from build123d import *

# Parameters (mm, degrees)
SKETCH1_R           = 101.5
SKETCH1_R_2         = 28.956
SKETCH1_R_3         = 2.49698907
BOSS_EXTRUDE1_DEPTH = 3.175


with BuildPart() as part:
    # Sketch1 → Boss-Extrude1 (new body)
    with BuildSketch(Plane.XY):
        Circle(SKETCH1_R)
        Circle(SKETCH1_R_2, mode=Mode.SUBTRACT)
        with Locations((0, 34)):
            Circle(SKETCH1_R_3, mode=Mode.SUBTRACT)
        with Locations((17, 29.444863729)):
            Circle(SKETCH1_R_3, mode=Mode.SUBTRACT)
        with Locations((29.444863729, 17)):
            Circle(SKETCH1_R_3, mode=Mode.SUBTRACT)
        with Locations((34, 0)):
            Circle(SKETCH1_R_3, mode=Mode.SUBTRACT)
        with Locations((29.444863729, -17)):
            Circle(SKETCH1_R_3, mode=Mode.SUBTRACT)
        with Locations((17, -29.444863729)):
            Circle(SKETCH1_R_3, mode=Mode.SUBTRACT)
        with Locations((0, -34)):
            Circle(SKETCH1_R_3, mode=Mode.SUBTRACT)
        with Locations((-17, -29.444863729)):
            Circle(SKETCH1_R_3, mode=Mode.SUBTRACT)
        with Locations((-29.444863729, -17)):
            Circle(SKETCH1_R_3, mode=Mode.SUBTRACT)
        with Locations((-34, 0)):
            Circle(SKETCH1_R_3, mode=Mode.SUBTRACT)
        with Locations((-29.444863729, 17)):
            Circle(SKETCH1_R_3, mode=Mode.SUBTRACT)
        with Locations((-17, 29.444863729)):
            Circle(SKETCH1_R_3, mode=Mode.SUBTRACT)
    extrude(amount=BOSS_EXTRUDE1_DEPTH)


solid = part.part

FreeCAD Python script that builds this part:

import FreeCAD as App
import Part
import Sketcher
Q = App.Units.Quantity

doc = App.newDocument("Part")
body = doc.addObject("PartDesign::Body", "Body")

# Sketch on XY plane
sketch1 = doc.addObject("Sketcher::SketchObject", "Sketch")
body.addObject(sketch1)
sketch1.AttachmentSupport = (doc.XY_Plane, [""])
sketch1.MapMode = "FlatFace"
sketch1.addGeometry(Part.Circle(App.Vector(0, 0, 0), App.Vector(0, 0, 1), 101.5), False)
sketch1.addGeometry(Part.Circle(App.Vector(-17, -29.4, 0), App.Vector(0, 0, 1), 2.5), False)
sketch1.addGeometry(Part.Circle(App.Vector(-29.4, -17, 0), App.Vector(0, 0, 1), 2.5), False)
sketch1.addGeometry(Part.Circle(App.Vector(0, -34, 0), App.Vector(0, 0, 1), 2.5), False)
sketch1.addGeometry(Part.Circle(App.Vector(17, -29.4, 0), App.Vector(0, 0, 1), 2.5), False)
sketch1.addGeometry(Part.Circle(App.Vector(29.4, -17, 0), App.Vector(0, 0, 1), 2.5), False)
sketch1.addGeometry(Part.Circle(App.Vector(-34, 0, 0), App.Vector(0, 0, 1), 2.5), False)
sketch1.addGeometry(Part.Circle(App.Vector(-29.4, 17, 0), App.Vector(0, 0, 1), 2.5), False)
sketch1.addGeometry(Part.Circle(App.Vector(-17, 29.4, 0), App.Vector(0, 0, 1), 2.5), False)
sketch1.addGeometry(Part.Circle(App.Vector(0, 0, 0), App.Vector(0, 0, 1), 29), False)
sketch1.addGeometry(Part.Circle(App.Vector(34, 0, 0), App.Vector(0, 0, 1), 2.5), False)
sketch1.addGeometry(Part.Circle(App.Vector(29.4, 17, 0), App.Vector(0, 0, 1), 2.5), False)
sketch1.addGeometry(Part.Circle(App.Vector(0, 34, 0), App.Vector(0, 0, 1), 2.5), False)
sketch1.addGeometry(Part.Circle(App.Vector(17, 29.4, 0), App.Vector(0, 0, 1), 2.5), False)
sketch1.addConstraint(Sketcher.Constraint("Coincident", 0, 3, -1, 1))
sketch1.addConstraint(Sketcher.Constraint("Coincident", 9, 3, -1, 1))
sketch1.addConstraint(Sketcher.Constraint("Equal", 1, 2))
sketch1.addConstraint(Sketcher.Constraint("Equal", 2, 3))
sketch1.addConstraint(Sketcher.Constraint("Equal", 3, 4))
sketch1.addConstraint(Sketcher.Constraint("Equal", 4, 5))
sketch1.addConstraint(Sketcher.Constraint("Equal", 5, 6))
sketch1.addConstraint(Sketcher.Constraint("Equal", 6, 7))
sketch1.addConstraint(Sketcher.Constraint("Equal", 7, 8))
sketch1.addConstraint(Sketcher.Constraint("Equal", 8, 10))
sketch1.addConstraint(Sketcher.Constraint("Equal", 10, 11))
sketch1.addConstraint(Sketcher.Constraint("Equal", 11, 12))
sketch1.addConstraint(Sketcher.Constraint("Equal", 12, 13))
sketch1.addConstraint(Sketcher.Constraint("Symmetric", 5, 3, 7, 3, -1, 1))
sketch1.addConstraint(Sketcher.Constraint("Symmetric", 4, 3, 8, 3, -1, 1))
sketch1.addConstraint(Sketcher.Constraint("Symmetric", 6, 3, 10, 3, -1, 1))
sketch1.addConstraint(Sketcher.Constraint("Symmetric", 2, 3, 11, 3, -1, 1))
sketch1.addConstraint(Sketcher.Constraint("Symmetric", 3, 3, 12, 3, -1, 1))
sketch1.addConstraint(Sketcher.Constraint("Symmetric", 1, 3, 13, 3, -1, 1))
sketch1.addConstraint(Sketcher.Constraint("Symmetric", 1, 3, 4, 3, -2))
sketch1.addConstraint(Sketcher.Constraint("Symmetric", 2, 3, 5, 3, -2))
sketch1.addConstraint(Sketcher.Constraint("PointOnObject", 3, 3, -2))
sketch1.addConstraint(Sketcher.Constraint("PointOnObject", 6, 3, -1))
sketch1.addConstraint(Sketcher.Constraint("Diameter", 9, Q("2.28 in")))
sketch1.addConstraint(Sketcher.Constraint("Diameter", 0, Q("203 mm")))
sketch1.addConstraint(Sketcher.Constraint("Diameter", 1, Q("4.993978 mm")))
sketch1.addConstraint(Sketcher.Constraint("DistanceX", 1, 3, -1, 1, Q("17 mm")))
sketch1.addConstraint(Sketcher.Constraint("DistanceY", 2, 3, -1, 1, Q("17 mm")))
sketch1.addConstraint(Sketcher.Constraint("DistanceY", 3, 3, -1, 1, Q("34 mm")))
sketch1.addConstraint(Sketcher.Constraint("DistanceX", 6, 3, -1, 1, Q("34 mm")))
sketch1.addConstraint(Sketcher.Constraint("DistanceY", 1, 3, -1, 1, Q("29.444864 mm")))
sketch1.addConstraint(Sketcher.Constraint("DistanceX", 2, 3, -1, 1, Q("29.444864 mm")))
pad1 = doc.addObject("PartDesign::Pad", "Pad")
body.addObject(pad1)
pad1.Profile = sketch1
pad1.Length = Q("0.125 in")

doc.recompute()
